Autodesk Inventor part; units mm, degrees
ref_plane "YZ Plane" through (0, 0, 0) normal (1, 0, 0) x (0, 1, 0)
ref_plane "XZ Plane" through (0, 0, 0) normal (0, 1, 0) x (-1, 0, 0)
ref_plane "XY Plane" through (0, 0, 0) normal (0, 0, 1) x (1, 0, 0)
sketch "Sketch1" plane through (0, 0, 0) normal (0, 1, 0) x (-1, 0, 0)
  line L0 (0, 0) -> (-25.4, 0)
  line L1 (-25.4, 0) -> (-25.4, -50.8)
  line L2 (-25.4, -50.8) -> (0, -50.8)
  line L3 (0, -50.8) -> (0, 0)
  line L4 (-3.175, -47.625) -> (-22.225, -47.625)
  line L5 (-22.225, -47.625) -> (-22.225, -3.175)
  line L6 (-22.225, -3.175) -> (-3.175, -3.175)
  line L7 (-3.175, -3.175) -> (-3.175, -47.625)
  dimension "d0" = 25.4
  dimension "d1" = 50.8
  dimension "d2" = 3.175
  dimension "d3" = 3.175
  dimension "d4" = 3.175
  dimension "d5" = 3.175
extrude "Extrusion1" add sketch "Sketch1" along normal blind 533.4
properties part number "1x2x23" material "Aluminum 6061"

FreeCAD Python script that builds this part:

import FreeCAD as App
import Part
import Sketcher
Q = App.Units.Quantity


def add_polygon(sketch, points):
    """Adds a closed chain of lines whose ends are joined by coincident constraints."""
    first, n = sketch.GeometryCount, len(points)
    for a, b in zip(points, points[1:] + points[:1]):
        sketch.addGeometry(Part.LineSegment(App.Vector(*a, 0), App.Vector(*b, 0)), False)
    for i in range(n):
        sketch.addConstraint(Sketcher.Constraint("Coincident", first + i, 2, first + (i + 1) % n, 1))

doc = App.newDocument("Part")
body = doc.addObject("PartDesign::Body", "Body")

sketch1 = body.newObject("Sketcher::SketchObject", "Sketch")
sketch1.AttachmentSupport = (doc.getObject("XZ_Plane"), [""])
sketch1.MapMode = "FlatFace"
add_polygon(sketch1, [(0, -51), (0, 0), (25, 0), (25, -51)])
add_polygon(sketch1, [(3, -3), (3, -48), (22, -48), (22, -3)])
sketch1.addConstraint([
    Sketcher.Constraint("Vertical", 0),
    Sketcher.Constraint("Horizontal", 1),
    Sketcher.Constraint("Vertical", 2),
    Sketcher.Constraint("Horizontal", 3),
    Sketcher.Constraint("Vertical", 4),
    Sketcher.Constraint("Horizontal", 5),
    Sketcher.Constraint("Vertical", 6),
    Sketcher.Constraint("Horizontal", 7),
    Sketcher.Constraint("Coincident", 0, 2, -1, 1),
    Sketcher.Constraint("DistanceX", 1, 1, 1, 2, Q("1 in")),
    Sketcher.Constraint("DistanceY", 0, 1, 0, 2, Q("2 in")),
    Sketcher.Constraint("DistanceX", -1, 1, 4, 2, Q("0.125 in")),
    Sketcher.Constraint("DistanceY", 6, 2, -1, 1, Q("0.125 in")),
    Sketcher.Constraint("DistanceY", 3, 2, 4, 2, Q("0.125 in")),
    Sketcher.Constraint("DistanceX", 5, 2, 2, 2, Q("0.125 in")),
])
pad1 = body.newObject("PartDesign::Pad", "Pad")
pad1.Profile = sketch1
pad1.Length = Q("21 in")
pad1.Reversed = True

doc.recompute()
